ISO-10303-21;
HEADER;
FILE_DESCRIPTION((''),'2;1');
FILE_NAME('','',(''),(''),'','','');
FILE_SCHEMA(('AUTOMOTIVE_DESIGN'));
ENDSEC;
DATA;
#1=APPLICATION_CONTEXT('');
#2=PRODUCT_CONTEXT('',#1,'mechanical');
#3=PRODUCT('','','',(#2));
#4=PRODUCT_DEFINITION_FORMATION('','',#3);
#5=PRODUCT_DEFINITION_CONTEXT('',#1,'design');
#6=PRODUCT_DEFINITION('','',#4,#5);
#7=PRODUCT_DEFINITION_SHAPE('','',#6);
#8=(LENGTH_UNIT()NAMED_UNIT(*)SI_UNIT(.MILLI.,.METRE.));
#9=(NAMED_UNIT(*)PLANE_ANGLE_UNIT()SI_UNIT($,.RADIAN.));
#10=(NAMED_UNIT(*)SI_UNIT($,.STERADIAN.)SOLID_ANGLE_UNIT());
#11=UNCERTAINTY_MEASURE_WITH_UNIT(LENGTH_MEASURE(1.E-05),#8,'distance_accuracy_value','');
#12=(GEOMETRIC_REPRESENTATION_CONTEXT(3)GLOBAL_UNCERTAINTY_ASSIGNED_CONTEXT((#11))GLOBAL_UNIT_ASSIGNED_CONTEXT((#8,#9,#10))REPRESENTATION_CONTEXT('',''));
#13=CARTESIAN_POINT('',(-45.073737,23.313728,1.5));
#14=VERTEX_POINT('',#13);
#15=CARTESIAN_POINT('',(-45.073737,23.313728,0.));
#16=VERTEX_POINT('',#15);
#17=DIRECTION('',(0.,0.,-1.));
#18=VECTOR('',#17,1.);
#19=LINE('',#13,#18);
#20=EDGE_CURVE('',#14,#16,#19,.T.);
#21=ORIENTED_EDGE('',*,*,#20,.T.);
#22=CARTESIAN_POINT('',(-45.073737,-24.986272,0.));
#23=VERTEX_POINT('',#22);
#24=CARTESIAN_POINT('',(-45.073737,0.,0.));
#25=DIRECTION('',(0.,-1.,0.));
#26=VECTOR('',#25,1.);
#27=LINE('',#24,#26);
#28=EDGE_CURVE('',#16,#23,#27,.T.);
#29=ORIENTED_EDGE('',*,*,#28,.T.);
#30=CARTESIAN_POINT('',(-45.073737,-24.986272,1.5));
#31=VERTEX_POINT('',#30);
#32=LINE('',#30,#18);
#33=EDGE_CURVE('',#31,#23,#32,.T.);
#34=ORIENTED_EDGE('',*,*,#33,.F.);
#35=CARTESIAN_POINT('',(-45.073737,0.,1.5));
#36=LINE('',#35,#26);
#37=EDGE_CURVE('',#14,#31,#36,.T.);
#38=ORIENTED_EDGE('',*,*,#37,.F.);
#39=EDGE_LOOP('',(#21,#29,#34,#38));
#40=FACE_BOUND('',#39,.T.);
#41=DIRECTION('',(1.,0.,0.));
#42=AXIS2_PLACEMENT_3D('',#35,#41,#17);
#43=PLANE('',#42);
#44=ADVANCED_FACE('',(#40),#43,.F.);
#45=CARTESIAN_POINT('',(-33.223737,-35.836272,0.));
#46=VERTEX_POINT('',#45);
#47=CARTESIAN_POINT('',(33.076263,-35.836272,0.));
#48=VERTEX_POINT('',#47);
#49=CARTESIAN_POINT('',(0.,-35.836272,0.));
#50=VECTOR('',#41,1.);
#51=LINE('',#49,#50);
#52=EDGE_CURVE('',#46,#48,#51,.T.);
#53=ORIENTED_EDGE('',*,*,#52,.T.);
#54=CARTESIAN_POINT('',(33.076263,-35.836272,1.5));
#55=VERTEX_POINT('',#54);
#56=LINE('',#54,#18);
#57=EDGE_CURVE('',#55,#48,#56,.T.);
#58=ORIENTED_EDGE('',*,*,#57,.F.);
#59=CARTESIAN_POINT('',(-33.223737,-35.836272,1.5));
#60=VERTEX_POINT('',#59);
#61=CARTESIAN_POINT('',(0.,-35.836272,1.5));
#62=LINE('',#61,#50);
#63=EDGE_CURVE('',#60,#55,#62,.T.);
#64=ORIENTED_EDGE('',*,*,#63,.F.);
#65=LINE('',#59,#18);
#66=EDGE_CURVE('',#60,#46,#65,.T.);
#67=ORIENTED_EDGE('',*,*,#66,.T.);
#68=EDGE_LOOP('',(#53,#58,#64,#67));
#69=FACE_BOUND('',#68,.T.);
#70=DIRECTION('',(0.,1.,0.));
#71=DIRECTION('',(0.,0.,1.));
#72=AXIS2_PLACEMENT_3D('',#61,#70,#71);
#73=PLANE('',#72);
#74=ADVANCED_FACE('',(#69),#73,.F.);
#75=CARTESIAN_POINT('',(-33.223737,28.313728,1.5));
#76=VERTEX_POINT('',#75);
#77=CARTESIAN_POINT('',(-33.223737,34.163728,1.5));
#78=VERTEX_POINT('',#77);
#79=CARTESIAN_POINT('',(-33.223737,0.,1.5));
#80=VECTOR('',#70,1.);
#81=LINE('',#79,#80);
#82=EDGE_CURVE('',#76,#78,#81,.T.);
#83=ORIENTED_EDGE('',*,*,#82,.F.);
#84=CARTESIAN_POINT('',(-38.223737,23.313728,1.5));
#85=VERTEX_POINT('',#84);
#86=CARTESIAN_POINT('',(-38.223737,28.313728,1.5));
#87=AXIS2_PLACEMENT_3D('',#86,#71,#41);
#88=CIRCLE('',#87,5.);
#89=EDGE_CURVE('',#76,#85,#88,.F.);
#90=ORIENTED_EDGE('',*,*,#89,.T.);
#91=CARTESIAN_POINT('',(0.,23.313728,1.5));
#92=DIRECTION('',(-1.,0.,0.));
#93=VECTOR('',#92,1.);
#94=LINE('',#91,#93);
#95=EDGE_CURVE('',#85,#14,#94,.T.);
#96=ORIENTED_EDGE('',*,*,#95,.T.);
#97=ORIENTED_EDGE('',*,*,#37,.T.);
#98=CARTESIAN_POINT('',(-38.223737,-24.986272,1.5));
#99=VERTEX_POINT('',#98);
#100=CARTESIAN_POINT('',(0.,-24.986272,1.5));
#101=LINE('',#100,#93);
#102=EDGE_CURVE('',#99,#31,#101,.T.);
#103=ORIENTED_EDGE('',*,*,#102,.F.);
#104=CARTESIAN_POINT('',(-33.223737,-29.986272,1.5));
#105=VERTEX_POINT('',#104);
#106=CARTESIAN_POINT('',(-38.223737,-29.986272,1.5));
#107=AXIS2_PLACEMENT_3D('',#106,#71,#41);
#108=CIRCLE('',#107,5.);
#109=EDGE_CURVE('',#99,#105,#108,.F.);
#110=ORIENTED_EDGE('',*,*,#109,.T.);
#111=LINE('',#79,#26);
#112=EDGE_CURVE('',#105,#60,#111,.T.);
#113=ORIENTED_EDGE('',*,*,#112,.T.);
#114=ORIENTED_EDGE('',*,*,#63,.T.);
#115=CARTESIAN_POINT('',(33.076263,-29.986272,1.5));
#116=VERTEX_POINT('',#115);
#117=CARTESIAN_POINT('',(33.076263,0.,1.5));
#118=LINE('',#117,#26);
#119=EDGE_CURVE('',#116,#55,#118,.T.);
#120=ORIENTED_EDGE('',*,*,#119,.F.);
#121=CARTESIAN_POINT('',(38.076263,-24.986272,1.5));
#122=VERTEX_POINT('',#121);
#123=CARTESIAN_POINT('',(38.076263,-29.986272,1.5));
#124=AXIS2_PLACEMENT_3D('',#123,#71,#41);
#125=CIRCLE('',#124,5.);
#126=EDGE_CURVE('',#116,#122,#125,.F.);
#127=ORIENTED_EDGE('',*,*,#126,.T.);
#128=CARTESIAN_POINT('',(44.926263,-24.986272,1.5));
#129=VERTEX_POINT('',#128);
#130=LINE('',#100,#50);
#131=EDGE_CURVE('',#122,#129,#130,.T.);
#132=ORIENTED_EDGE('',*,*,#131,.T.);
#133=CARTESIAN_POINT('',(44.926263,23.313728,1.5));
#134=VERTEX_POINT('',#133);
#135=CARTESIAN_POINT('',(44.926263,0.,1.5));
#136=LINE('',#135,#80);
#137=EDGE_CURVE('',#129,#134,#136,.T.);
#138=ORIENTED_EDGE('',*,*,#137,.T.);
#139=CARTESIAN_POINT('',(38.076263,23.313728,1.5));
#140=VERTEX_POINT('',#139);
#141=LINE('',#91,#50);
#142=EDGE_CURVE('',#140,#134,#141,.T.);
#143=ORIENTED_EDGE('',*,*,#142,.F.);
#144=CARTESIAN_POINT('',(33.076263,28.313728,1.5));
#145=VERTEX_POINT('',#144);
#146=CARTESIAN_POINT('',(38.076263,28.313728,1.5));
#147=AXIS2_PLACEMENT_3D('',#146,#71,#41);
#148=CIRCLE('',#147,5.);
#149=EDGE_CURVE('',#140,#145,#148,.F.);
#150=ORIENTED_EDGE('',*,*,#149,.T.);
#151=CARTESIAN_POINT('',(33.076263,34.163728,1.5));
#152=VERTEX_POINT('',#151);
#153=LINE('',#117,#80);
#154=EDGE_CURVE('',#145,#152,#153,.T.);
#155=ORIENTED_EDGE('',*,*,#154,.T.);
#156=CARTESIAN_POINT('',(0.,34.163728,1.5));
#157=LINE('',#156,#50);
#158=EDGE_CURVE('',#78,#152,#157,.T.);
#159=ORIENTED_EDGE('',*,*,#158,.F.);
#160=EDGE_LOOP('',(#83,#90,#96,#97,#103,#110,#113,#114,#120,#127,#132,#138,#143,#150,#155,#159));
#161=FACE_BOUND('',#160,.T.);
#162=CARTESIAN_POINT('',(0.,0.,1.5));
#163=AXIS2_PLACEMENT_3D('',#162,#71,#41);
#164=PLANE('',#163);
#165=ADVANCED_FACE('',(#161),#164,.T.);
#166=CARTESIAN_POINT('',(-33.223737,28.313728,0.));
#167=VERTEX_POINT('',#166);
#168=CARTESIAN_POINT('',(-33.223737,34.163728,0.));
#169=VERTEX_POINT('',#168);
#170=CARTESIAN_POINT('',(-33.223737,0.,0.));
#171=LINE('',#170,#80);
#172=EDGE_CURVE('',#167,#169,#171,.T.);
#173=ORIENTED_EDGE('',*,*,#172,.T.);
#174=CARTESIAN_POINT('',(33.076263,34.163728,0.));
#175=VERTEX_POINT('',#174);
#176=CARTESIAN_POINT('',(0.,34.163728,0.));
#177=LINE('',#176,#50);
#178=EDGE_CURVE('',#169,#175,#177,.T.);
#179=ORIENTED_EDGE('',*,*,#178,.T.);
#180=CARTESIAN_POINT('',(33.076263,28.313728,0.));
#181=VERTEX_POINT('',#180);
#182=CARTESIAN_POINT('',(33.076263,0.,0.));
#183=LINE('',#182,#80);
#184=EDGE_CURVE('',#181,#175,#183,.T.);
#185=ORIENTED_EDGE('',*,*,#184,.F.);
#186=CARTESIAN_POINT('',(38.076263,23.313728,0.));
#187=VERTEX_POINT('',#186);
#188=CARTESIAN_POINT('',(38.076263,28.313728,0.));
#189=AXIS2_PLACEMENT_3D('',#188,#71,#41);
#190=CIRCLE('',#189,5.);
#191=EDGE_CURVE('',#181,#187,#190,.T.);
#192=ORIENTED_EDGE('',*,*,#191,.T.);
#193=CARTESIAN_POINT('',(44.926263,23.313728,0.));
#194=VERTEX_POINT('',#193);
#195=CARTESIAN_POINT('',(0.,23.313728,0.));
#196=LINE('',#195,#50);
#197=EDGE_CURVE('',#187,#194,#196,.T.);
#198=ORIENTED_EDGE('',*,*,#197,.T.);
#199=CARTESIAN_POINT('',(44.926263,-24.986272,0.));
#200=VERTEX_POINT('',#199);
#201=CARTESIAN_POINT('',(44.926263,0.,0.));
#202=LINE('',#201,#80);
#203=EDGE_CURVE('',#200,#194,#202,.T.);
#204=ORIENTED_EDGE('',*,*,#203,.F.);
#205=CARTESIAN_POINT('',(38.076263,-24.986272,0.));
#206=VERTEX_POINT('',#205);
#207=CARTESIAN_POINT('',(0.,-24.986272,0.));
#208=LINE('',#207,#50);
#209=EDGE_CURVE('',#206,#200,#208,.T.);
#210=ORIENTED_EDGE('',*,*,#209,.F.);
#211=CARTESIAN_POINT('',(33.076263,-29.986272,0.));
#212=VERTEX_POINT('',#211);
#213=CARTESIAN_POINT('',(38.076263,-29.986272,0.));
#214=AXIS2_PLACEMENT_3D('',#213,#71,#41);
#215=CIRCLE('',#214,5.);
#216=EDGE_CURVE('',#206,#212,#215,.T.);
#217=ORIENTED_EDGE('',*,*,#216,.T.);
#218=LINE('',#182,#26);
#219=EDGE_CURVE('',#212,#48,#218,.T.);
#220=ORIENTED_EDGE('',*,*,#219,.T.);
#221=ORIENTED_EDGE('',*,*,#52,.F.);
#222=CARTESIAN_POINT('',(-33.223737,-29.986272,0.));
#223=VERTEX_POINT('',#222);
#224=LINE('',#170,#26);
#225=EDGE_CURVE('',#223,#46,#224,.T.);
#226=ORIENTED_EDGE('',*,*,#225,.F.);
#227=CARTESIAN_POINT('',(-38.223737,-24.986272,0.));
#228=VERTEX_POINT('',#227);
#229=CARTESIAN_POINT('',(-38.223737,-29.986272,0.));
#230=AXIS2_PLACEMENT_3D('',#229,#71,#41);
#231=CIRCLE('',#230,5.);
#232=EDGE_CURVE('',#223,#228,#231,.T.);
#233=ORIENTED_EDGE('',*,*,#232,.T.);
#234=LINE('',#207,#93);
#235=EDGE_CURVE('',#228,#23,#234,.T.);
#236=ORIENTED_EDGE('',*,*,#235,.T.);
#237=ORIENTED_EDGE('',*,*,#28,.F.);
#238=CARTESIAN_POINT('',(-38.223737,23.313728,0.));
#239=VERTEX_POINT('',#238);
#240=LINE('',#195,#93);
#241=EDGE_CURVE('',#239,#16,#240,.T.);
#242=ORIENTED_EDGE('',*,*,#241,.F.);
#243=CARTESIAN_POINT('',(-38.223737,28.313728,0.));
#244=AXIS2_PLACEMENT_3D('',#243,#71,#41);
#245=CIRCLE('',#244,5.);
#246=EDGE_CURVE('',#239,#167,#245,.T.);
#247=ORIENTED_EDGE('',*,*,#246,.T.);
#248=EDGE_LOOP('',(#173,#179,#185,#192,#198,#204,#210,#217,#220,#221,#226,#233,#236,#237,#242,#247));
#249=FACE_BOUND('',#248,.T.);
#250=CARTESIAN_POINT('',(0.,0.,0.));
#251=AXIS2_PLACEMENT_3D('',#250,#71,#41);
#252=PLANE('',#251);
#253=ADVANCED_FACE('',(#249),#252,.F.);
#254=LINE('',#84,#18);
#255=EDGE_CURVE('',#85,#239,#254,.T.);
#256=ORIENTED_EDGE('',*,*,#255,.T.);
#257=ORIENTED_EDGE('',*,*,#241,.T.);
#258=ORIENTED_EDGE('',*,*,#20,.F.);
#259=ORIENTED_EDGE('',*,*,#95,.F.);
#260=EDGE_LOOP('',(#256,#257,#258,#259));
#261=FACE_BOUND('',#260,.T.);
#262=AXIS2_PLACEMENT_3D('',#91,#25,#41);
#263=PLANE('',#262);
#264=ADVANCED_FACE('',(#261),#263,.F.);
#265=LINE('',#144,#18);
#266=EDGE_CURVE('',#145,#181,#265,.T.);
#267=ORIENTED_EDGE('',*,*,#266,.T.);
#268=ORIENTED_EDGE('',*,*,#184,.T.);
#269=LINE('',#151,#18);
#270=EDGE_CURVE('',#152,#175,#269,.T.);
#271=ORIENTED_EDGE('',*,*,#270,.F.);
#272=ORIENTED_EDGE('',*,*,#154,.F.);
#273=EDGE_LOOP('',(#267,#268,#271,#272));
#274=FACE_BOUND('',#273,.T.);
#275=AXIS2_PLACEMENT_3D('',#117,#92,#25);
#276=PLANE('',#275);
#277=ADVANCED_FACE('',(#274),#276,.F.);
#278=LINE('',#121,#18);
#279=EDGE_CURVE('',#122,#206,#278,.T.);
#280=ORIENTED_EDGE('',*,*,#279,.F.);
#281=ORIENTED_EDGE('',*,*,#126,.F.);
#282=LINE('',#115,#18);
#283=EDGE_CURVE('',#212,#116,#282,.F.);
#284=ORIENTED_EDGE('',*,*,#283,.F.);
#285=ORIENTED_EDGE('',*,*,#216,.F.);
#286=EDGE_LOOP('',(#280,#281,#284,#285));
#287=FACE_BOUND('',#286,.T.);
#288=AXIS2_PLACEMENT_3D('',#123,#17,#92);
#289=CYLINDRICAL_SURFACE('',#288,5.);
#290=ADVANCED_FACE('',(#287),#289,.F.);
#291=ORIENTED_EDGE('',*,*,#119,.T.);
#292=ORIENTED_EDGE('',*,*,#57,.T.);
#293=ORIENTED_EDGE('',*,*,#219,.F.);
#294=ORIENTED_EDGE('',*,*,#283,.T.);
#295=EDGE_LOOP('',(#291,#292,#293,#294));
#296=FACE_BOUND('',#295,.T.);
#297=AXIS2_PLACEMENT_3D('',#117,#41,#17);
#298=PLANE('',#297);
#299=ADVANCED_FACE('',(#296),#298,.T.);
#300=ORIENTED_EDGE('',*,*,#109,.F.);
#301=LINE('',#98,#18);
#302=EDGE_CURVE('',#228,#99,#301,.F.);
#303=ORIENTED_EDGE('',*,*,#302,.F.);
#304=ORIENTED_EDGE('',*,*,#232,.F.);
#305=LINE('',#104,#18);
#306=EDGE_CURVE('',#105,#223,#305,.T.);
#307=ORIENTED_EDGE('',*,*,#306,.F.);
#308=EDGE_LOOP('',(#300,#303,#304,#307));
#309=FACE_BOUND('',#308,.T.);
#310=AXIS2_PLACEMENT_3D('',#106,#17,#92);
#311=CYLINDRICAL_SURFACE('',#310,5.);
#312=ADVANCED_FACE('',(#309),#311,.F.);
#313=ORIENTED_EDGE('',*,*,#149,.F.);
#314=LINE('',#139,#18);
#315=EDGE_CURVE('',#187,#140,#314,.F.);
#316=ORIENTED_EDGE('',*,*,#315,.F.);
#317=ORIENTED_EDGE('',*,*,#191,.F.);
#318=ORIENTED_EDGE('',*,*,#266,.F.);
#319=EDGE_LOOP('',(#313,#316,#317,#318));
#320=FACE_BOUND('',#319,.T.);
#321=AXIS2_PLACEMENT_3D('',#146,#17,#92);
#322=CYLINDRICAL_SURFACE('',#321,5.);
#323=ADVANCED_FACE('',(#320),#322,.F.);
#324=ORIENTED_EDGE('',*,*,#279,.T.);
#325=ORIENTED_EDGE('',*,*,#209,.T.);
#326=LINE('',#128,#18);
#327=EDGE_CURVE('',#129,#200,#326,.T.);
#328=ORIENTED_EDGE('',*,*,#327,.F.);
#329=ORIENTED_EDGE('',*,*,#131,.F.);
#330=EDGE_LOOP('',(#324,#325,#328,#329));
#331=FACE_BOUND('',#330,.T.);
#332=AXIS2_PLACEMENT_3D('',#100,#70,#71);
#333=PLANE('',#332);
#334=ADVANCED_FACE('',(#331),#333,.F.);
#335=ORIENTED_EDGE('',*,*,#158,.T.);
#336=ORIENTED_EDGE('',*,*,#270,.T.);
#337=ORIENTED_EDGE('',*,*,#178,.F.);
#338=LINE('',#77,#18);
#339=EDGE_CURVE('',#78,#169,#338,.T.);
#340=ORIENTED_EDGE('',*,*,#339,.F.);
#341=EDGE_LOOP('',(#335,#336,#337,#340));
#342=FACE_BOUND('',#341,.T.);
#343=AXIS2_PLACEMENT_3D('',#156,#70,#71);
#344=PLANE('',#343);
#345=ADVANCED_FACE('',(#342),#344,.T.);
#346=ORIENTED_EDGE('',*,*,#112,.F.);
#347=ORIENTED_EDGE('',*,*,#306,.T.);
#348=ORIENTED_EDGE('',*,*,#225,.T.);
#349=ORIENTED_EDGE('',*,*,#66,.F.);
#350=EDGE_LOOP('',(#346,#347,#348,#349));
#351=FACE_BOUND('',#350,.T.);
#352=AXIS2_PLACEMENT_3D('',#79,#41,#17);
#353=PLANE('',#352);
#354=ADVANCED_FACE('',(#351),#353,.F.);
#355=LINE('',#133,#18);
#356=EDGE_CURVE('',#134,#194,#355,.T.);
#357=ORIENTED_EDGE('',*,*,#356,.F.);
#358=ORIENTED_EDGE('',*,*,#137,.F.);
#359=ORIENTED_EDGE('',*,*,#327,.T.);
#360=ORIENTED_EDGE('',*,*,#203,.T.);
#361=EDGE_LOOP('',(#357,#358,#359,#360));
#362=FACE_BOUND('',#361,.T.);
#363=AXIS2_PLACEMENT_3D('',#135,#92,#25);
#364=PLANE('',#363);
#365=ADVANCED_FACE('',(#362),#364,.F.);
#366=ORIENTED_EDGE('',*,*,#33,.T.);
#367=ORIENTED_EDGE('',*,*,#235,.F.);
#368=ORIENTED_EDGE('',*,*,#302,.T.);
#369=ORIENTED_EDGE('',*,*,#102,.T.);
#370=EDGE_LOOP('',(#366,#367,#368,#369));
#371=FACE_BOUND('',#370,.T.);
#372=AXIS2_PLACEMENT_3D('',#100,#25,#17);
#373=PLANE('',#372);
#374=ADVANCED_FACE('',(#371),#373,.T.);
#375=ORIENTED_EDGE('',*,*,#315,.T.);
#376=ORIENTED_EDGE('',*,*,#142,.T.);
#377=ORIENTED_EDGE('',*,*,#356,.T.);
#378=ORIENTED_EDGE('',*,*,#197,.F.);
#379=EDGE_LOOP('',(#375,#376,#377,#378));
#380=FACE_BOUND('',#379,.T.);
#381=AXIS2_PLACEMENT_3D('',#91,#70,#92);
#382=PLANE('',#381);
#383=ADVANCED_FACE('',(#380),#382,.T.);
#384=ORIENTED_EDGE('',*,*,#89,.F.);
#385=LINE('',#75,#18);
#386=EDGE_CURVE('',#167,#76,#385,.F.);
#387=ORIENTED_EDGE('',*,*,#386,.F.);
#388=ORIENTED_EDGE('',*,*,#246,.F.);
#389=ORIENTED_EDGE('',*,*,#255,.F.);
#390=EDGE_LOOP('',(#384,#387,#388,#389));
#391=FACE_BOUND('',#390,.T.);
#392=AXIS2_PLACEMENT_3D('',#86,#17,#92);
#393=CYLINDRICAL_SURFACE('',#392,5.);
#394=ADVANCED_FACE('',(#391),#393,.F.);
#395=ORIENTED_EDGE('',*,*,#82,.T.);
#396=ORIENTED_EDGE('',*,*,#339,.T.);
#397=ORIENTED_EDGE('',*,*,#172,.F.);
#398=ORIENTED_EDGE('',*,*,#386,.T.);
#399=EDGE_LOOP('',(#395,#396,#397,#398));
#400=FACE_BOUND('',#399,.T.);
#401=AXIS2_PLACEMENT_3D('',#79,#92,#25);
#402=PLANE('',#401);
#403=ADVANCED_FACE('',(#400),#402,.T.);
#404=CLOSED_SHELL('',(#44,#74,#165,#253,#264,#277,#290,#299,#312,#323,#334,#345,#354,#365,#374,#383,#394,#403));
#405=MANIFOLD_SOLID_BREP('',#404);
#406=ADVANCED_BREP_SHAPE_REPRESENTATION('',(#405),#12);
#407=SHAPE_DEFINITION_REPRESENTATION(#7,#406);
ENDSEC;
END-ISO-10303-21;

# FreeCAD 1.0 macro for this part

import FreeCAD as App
import Part
import Sketcher

V = App.Vector


def edges_at(feature, points):
    """Names of the edges that pass closest to the given points."""
    edges = feature.Shape.Edges
    near = lambda p: min(range(len(edges)), key=lambda i: edges[i].distToShape(Part.Vertex(*p))[0])
    return sorted({f"Edge{near(p) + 1}" for p in points})

doc = App.newDocument("Part")
body = doc.addObject("PartDesign::Body", "Body")

# Sketch on XY plane
sketch1 = doc.addObject("Sketcher::SketchObject", "Sketch")
body.addObject(sketch1)
sketch1.AttachmentSupport = (doc.XY_Plane, [""])
sketch1.MapMode = "FlatFace"
sketch1.addGeometry(Part.LineSegment(V(-33, 23, 0), V(-45, 23, 0)), False)
sketch1.addGeometry(Part.LineSegment(V(-45, 23, 0), V(-45, -25, 0)), False)
sketch1.addGeometry(Part.LineSegment(V(-45, -25, 0), V(-33, -25, 0)), False)
sketch1.addGeometry(Part.LineSegment(V(-33, -25, 0), V(-33, -36, 0)), False)
sketch1.addGeometry(Part.LineSegment(V(-33, -36, 0), V(33, -36, 0)), False)
sketch1.addGeometry(Part.LineSegment(V(33, -36, 0), V(33, -25, 0)), False)
sketch1.addGeometry(Part.LineSegment(V(33, -25, 0), V(45, -25, 0)), False)
sketch1.addGeometry(Part.LineSegment(V(45, -25, 0), V(45, 23, 0)), False)
sketch1.addGeometry(Part.LineSegment(V(45, 23, 0), V(33, 23, 0)), False)
sketch1.addGeometry(Part.LineSegment(V(33, 23, 0), V(33, 34, 0)), False)
sketch1.addGeometry(Part.LineSegment(V(33, 34, 0), V(-33, 34, 0)), False)
sketch1.addGeometry(Part.LineSegment(V(-33, 34, 0), V(-33, 23, 0)), False)
sketch1.addConstraint(Sketcher.Constraint("Coincident", 0, 2, 1, 1))
sketch1.addConstraint(Sketcher.Constraint("Coincident", 1, 2, 2, 1))
sketch1.addConstraint(Sketcher.Constraint("Coincident", 2, 2, 3, 1))
sketch1.addConstraint(Sketcher.Constraint("Coincident", 3, 2, 4, 1))
sketch1.addConstraint(Sketcher.Constraint("Coincident", 4, 2, 5, 1))
sketch1.addConstraint(Sketcher.Constraint("Coincident", 5, 2, 6, 1))
sketch1.addConstraint(Sketcher.Constraint("Coincident", 6, 2, 7, 1))
sketch1.addConstraint(Sketcher.Constraint("Coincident", 7, 2, 8, 1))
sketch1.addConstraint(Sketcher.Constraint("Coincident", 8, 2, 9, 1))
sketch1.addConstraint(Sketcher.Constraint("Coincident", 9, 2, 10, 1))
sketch1.addConstraint(Sketcher.Constraint("Coincident", 10, 2, 11, 1))
sketch1.addConstraint(Sketcher.Constraint("Coincident", 11, 2, 0, 1))
sketch1.addConstraint(Sketcher.Constraint("Horizontal", 0))
sketch1.addConstraint(Sketcher.Constraint("Vertical", 1))
sketch1.addConstraint(Sketcher.Constraint("Horizontal", 2))
sketch1.addConstraint(Sketcher.Constraint("Vertical", 3))
sketch1.addConstraint(Sketcher.Constraint("Horizontal", 4))
sketch1.addConstraint(Sketcher.Constraint("Vertical", 5))
sketch1.addConstraint(Sketcher.Constraint("Horizontal", 6))
sketch1.addConstraint(Sketcher.Constraint("Vertical", 7))
sketch1.addConstraint(Sketcher.Constraint("Horizontal", 8))
sketch1.addConstraint(Sketcher.Constraint("Vertical", 9))
sketch1.addConstraint(Sketcher.Constraint("Horizontal", 10))
sketch1.addConstraint(Sketcher.Constraint("Vertical", 11))
sketch1.addConstraint(Sketcher.Constraint("Horizontal", 2, 2, 5, 2))
sketch1.addConstraint(Sketcher.Constraint("Horizontal", 0, 2, 7, 2))
sketch1.addConstraint(Sketcher.Constraint("Vertical", 5, 2, 8, 2))
sketch1.addConstraint(Sketcher.Constraint("Vertical", 3, 2, 10, 2))
sketch1.addConstraint(Sketcher.Constraint("Equal", 2, 6))
sketch1.addConstraint(Sketcher.Constraint("Equal", 5, 9))
sketch1.addConstraint(Sketcher.Constraint("DistanceX", 4, 1, 4, 2, 66.3))
sketch1.addConstraint(Sketcher.Constraint("DistanceY", 1, 2, 1, 1, 48.3))
sketch1.addConstraint(Sketcher.Constraint("DistanceX", 1, 2, 6, 2, 90.0))
sketch1.addConstraint(Sketcher.Constraint("DistanceY", 4, 2, 9, 2, 70.0))
sketch1.addConstraint(Sketcher.Constraint("DistanceX", 0, 2, -1, 1, 45.073737))
sketch1.addConstraint(Sketcher.Constraint("DistanceY", -1, 1, 0, 2, 23.313728))
pad1 = doc.addObject("PartDesign::Pad", "Pad")
body.addObject(pad1)
pad1.Profile = sketch1
pad1.Length = 1.5
doc.recompute()

fillet = doc.addObject("PartDesign::Fillet", "Fillet")
body.addObject(fillet)
fillet.Base = (pad1, edges_at(pad1, [
    (33.076, 23.314, 0.75),
    (33.076, -24.986, 0.75),
    (-33.224, -24.986, 0.75),
    (-33.224, 23.314, 0.75),
]))
fillet.Radius = 5

doc.recompute()
